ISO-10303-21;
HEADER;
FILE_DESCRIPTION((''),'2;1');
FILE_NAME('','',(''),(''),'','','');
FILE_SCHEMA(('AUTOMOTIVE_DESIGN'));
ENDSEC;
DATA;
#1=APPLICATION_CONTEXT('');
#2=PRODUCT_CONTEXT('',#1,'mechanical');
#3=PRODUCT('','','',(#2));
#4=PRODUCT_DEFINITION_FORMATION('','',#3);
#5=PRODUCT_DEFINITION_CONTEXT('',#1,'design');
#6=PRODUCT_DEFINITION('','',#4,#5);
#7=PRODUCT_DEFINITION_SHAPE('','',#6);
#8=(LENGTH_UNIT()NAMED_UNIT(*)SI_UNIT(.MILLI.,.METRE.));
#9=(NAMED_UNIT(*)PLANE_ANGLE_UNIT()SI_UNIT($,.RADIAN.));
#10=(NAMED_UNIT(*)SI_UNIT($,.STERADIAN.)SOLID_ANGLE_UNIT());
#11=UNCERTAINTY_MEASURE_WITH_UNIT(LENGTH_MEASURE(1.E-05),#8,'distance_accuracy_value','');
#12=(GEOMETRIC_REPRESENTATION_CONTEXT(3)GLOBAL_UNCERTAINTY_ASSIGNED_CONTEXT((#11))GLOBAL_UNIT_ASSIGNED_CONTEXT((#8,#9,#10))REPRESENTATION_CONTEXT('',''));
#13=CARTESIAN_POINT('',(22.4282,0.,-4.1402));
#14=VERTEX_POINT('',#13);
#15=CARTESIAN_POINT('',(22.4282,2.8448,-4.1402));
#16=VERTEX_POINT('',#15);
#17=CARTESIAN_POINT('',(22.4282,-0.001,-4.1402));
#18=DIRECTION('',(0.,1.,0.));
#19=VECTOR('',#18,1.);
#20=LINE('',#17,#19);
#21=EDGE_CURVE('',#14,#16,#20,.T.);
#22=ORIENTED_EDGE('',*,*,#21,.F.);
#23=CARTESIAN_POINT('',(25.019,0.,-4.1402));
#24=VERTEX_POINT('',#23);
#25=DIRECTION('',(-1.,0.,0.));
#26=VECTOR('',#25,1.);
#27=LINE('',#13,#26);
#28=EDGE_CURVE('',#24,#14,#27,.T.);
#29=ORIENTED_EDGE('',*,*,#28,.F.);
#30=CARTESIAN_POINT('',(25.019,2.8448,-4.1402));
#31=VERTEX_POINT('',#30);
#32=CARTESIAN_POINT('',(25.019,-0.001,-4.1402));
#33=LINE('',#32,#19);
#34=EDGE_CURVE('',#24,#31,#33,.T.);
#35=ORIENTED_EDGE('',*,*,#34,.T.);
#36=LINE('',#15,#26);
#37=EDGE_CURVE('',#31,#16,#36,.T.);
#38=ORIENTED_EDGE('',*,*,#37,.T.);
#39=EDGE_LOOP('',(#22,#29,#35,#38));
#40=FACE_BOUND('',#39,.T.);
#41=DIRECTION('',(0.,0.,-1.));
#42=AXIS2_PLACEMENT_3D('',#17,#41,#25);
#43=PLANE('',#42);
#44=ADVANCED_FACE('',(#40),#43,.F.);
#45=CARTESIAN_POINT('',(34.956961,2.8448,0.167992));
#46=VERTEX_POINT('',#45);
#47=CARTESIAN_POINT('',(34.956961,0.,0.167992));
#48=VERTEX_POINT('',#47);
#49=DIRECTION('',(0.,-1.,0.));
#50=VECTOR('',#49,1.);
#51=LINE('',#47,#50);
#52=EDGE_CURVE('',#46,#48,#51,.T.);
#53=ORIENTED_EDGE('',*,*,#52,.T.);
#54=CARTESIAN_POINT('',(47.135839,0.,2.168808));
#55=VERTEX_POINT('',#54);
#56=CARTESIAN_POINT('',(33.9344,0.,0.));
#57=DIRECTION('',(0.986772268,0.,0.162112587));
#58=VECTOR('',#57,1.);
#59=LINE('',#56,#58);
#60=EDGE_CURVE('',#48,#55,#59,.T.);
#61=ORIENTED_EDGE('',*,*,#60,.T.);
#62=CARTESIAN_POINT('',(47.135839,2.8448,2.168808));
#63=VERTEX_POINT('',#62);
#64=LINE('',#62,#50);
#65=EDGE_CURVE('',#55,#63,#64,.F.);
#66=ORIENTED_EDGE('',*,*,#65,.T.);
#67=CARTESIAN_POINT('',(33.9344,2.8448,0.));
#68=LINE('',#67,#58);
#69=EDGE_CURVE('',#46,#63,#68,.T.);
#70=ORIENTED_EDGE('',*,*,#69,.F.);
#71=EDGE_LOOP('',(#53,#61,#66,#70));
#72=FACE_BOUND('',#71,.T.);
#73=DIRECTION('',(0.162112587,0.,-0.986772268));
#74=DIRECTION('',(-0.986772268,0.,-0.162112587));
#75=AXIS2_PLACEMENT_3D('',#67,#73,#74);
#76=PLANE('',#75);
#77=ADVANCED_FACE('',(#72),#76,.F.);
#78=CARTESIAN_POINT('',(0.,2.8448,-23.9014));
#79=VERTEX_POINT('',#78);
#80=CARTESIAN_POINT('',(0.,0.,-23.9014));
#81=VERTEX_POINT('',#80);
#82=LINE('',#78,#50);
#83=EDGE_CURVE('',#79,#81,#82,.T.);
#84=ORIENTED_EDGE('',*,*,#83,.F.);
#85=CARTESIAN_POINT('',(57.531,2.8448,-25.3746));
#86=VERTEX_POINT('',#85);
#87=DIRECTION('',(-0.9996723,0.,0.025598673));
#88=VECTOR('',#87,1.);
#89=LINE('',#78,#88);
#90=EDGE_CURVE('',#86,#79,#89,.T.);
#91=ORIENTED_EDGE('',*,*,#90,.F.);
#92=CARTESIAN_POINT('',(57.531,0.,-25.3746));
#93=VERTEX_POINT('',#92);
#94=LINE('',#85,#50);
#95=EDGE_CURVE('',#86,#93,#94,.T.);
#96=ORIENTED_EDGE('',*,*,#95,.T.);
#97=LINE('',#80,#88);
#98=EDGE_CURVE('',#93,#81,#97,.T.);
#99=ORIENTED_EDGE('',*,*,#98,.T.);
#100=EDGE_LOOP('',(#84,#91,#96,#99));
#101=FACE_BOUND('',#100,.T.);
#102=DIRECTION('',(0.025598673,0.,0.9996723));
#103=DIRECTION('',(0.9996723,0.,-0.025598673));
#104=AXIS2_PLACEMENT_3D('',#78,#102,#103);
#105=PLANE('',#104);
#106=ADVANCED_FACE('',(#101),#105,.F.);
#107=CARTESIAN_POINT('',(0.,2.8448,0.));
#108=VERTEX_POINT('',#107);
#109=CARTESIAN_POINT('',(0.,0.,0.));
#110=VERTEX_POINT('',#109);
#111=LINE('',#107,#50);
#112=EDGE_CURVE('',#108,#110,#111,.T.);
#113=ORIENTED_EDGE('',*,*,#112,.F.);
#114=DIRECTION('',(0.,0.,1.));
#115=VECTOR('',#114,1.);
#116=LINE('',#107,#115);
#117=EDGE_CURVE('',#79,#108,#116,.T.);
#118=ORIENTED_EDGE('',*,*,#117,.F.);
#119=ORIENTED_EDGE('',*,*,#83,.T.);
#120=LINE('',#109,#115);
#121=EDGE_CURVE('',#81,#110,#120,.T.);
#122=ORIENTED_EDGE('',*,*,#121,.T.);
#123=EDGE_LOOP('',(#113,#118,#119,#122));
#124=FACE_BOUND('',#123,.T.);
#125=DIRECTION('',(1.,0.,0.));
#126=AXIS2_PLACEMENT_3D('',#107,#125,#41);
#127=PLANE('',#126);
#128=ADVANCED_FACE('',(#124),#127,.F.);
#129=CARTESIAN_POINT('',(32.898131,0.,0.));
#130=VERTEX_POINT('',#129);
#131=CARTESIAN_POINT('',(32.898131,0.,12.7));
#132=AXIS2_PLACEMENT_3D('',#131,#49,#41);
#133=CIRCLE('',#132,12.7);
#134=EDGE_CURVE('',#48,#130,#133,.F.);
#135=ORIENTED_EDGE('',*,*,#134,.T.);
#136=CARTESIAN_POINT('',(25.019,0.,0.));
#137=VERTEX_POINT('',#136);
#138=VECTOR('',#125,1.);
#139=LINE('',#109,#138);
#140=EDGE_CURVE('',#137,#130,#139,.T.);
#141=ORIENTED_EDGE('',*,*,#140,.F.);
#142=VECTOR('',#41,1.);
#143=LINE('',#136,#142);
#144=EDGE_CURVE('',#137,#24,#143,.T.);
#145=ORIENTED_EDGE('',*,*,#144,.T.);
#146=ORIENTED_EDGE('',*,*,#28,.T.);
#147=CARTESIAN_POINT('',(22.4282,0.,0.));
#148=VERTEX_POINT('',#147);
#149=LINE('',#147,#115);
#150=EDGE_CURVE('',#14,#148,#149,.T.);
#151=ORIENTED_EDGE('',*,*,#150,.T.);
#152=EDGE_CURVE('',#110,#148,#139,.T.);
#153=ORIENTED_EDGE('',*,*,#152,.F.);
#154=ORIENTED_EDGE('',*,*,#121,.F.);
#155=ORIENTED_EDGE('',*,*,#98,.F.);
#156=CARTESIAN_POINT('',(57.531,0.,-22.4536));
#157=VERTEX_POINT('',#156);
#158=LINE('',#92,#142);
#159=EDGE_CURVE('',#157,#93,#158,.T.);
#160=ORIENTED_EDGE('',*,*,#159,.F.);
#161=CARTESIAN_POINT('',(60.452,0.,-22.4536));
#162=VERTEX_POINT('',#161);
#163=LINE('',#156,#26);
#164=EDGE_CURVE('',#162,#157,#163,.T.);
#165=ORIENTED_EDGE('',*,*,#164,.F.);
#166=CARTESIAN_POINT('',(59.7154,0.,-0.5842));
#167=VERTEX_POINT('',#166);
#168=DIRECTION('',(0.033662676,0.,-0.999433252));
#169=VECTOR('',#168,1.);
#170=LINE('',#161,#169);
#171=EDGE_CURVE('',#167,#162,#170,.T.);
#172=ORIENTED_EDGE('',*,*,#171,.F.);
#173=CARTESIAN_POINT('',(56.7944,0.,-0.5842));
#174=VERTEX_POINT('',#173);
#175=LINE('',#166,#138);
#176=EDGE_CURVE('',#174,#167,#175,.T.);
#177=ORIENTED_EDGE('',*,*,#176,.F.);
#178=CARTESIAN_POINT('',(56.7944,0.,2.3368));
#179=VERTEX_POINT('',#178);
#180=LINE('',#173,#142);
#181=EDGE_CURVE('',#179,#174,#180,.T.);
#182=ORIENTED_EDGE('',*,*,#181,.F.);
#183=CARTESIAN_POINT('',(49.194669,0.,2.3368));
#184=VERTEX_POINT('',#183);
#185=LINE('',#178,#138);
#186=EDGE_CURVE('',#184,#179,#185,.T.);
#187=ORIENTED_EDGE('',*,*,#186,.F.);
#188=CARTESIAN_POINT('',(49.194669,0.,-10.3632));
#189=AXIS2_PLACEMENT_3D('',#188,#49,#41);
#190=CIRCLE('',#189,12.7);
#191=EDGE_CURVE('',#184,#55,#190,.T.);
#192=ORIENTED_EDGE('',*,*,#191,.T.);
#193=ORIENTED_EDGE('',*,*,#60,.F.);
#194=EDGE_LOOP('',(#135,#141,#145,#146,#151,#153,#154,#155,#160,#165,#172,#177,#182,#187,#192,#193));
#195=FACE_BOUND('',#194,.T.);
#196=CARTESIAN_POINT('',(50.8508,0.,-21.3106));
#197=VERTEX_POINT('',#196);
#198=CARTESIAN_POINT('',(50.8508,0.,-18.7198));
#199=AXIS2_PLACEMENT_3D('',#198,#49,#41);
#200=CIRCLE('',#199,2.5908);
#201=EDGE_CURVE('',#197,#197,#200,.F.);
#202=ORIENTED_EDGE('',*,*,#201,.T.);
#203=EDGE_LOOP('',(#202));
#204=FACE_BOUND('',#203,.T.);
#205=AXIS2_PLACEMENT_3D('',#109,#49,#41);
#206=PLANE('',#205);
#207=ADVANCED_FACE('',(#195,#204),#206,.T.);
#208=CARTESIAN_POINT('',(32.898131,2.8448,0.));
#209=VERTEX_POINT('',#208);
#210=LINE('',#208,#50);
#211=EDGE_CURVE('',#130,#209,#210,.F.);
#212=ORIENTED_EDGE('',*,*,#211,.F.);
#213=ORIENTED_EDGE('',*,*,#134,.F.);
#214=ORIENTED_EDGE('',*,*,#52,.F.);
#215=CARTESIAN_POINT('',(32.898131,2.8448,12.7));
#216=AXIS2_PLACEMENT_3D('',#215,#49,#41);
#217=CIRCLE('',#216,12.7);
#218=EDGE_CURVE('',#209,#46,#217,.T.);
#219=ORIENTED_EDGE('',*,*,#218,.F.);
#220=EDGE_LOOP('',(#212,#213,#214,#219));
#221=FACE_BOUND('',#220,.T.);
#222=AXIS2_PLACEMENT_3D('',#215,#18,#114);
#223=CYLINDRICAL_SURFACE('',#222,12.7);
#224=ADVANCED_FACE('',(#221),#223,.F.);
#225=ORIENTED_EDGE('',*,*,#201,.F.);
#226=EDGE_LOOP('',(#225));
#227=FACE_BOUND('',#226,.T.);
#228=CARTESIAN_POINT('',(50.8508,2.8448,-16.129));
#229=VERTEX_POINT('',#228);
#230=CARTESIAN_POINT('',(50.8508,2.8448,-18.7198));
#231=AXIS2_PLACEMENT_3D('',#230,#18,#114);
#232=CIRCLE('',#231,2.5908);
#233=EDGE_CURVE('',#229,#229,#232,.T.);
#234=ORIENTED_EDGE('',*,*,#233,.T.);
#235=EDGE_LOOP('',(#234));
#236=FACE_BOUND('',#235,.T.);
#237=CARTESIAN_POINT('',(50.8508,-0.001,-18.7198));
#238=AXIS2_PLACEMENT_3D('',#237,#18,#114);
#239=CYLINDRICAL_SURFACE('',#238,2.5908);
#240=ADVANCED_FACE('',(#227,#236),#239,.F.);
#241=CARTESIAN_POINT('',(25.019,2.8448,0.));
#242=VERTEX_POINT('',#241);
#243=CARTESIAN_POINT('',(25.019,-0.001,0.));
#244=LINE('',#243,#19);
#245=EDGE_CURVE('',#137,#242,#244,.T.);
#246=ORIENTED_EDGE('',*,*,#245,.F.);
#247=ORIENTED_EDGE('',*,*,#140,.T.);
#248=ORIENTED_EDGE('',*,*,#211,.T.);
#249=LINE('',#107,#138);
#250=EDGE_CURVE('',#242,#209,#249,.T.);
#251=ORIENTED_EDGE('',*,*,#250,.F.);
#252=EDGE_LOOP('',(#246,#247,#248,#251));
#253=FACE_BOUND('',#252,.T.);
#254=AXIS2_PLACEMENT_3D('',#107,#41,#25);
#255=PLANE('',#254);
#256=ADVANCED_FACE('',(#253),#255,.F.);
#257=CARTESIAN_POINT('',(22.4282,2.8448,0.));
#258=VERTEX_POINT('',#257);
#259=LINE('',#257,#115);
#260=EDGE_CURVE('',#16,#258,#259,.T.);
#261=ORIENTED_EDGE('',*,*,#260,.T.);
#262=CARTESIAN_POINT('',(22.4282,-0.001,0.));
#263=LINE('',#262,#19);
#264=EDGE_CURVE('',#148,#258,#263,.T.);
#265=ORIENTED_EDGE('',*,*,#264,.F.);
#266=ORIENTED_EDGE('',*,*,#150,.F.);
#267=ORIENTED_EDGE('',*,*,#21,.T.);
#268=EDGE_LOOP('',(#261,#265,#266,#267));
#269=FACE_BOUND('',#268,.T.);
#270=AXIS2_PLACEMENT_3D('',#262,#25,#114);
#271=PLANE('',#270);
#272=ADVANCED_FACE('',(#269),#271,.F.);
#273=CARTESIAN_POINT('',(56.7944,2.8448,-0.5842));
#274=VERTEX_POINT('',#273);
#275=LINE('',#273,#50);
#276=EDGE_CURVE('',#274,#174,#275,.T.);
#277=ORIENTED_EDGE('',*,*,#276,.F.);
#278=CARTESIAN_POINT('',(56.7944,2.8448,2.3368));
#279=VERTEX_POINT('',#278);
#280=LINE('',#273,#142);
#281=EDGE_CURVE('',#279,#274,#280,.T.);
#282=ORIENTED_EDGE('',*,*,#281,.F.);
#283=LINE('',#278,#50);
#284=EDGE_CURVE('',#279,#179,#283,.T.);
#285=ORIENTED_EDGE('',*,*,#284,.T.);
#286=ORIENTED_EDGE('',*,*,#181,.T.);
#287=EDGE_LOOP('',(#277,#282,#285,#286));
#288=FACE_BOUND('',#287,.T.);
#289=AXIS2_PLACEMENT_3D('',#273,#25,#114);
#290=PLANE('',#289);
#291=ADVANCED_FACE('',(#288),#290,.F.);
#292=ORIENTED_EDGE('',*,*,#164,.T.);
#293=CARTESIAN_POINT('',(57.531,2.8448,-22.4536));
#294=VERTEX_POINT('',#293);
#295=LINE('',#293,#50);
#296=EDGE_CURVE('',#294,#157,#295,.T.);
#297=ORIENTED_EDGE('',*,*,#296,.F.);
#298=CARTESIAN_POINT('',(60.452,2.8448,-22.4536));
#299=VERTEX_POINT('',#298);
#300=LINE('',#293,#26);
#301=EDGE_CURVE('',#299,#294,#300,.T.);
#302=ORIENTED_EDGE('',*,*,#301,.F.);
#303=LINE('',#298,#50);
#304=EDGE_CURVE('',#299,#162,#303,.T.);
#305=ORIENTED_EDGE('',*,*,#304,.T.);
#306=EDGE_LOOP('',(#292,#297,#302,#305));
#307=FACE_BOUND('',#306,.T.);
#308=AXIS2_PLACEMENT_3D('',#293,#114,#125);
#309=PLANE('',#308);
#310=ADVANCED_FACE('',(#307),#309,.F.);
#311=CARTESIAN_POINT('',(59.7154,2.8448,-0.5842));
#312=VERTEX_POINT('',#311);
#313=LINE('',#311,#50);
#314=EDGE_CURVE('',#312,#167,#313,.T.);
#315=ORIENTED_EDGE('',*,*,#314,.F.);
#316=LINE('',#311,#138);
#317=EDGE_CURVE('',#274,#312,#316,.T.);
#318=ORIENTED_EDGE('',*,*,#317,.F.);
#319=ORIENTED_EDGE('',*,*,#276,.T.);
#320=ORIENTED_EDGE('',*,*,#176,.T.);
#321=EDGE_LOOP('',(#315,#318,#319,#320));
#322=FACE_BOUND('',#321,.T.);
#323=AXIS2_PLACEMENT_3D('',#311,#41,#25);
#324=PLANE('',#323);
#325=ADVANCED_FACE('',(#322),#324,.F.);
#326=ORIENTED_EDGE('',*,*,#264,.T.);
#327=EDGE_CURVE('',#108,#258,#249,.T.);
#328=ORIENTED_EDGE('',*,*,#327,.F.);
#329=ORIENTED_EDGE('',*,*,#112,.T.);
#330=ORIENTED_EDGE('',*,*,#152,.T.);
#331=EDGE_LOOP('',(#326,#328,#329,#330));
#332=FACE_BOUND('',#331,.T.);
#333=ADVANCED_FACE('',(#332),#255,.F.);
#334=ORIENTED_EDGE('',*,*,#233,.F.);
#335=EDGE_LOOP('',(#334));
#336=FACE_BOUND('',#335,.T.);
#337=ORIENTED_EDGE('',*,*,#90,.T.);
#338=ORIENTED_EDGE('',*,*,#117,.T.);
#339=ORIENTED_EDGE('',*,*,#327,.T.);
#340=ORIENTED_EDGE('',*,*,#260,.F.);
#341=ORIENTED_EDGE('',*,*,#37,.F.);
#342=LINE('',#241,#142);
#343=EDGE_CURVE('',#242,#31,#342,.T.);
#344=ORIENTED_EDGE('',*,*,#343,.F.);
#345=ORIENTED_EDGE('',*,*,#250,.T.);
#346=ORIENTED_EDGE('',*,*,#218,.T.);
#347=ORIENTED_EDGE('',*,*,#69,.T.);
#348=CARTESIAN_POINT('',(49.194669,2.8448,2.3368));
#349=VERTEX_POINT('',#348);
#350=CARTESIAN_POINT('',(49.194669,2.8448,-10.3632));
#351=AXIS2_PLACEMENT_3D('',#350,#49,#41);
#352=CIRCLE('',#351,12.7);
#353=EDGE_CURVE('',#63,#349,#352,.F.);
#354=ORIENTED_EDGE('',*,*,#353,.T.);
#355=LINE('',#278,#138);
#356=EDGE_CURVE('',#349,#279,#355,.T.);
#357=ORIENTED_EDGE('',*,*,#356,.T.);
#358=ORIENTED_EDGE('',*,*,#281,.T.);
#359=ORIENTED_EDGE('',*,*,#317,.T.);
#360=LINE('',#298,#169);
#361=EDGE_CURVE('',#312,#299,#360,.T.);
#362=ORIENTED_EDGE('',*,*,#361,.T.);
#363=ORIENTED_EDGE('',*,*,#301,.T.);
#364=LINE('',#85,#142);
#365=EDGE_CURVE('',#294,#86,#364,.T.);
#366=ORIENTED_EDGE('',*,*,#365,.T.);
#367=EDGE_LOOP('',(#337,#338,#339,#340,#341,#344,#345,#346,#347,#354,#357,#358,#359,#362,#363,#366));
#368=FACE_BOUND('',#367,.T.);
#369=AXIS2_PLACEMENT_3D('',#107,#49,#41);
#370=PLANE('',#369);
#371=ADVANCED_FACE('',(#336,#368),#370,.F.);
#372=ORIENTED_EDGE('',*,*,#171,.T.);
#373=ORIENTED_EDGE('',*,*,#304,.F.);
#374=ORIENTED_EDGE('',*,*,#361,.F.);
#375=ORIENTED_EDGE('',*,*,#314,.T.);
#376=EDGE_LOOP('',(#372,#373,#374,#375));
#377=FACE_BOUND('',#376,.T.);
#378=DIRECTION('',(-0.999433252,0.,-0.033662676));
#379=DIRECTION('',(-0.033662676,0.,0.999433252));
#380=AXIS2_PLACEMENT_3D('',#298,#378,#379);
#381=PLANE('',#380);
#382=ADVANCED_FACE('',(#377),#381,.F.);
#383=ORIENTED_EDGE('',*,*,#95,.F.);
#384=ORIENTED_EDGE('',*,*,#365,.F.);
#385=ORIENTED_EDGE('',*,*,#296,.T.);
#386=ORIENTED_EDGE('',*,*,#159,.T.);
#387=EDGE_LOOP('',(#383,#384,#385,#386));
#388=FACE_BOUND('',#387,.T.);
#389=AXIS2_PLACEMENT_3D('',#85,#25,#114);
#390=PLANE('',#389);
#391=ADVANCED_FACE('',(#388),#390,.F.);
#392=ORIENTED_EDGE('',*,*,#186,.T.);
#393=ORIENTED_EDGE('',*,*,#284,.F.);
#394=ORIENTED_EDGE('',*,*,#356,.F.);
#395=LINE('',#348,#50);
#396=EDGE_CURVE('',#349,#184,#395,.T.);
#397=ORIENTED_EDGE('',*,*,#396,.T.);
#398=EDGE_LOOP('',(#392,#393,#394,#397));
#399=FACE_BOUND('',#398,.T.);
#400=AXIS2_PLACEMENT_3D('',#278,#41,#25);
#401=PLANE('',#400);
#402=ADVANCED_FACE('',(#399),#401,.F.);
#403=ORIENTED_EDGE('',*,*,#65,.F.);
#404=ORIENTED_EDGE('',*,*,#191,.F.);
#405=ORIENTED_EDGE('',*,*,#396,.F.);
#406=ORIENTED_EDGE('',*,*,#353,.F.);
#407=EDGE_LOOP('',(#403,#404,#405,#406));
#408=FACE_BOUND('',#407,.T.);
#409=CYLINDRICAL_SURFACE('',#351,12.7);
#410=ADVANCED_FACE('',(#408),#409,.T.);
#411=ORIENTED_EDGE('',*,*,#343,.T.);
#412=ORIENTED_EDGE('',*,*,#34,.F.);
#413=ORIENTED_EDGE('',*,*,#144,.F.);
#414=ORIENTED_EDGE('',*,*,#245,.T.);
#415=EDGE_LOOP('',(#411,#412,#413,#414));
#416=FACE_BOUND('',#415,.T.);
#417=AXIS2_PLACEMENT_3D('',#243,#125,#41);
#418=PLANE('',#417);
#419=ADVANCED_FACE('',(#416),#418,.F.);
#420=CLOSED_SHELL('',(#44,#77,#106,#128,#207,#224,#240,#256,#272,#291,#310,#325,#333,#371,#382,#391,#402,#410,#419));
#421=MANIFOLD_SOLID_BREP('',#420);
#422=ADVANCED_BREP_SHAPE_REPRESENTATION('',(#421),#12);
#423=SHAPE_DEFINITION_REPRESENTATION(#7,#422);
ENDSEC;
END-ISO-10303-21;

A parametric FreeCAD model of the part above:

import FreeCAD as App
import Part
import Sketcher

V = App.Vector
Q = App.Units.Quantity


def edges_at(feature, points):
    """Names of the edges that pass closest to the given points."""
    edges = feature.Shape.Edges
    near = lambda p: min(range(len(edges)), key=lambda i: edges[i].distToShape(Part.Vertex(*p))[0])
    return sorted({f"Edge{near(p) + 1}" for p in points})

doc = App.newDocument("Part")
params = doc.addObject("Spreadsheet::Sheet", "Params")
for row, (alias, value) in enumerate([
    ("sketch1_width", "0.34 in"),
    ("sketch1_width2", "1.336 in"),
    ("sketch1_width3", "0.115 in"),
    ("sketch1_height", "0.941 in"),
    ("pad1_length", "0.112 in"),
    ("fillet_radius", "0.5 in"),
    ("sketch2_width", "0.102 in"),
    ("sketch2_height", "0.163 in"),
    ("sketch3_diameter", "0.204 in"),
], start=1):
    params.set(f"A{row}", alias)
    params.set(f"B{row}", "=" + value)
    params.setAlias(f"B{row}", alias)

body = doc.addObject("PartDesign::Body", "Body")

sketch1 = body.newObject("Sketcher::SketchObject", "Sketch")
sketch1.AttachmentSupport = (doc.getObject("XZ_Plane"), [""])
sketch1.MapMode = "FlatFace"
sketch1.addGeometry([
    Part.LineSegment(V(0, -23.9, 0), V(0, 0, 0)),
    Part.LineSegment(V(0, 0, 0), V(33.9, 0, 0)),
    Part.LineSegment(V(33.9, 0, 0), V(48.2, 2.3, 0)),
    Part.LineSegment(V(48.2, 2.3, 0), V(56.8, 2.3, 0)),
    Part.LineSegment(V(56.8, 2.3, 0), V(56.8, -0.6, 0)),
    Part.LineSegment(V(56.8, -0.6, 0), V(59.7, -0.6, 0)),
    Part.LineSegment(V(59.7, -0.6, 0), V(60.5, -22.5, 0)),
    Part.LineSegment(V(60.5, -22.5, 0), V(57.5, -22.5, 0)),
    Part.LineSegment(V(57.5, -22.5, 0), V(57.5, -25.4, 0)),
    Part.LineSegment(V(57.5, -25.4, 0), V(0, -23.9, 0)),
], False)
sketch1.addConstraint([
    Sketcher.Constraint("Coincident", 0, 2, 1, 1),
    Sketcher.Constraint("Coincident", 1, 2, 2, 1),
    Sketcher.Constraint("Coincident", 2, 2, 3, 1),
    Sketcher.Constraint("Coincident", 3, 2, 4, 1),
    Sketcher.Constraint("Coincident", 4, 2, 5, 1),
    Sketcher.Constraint("Coincident", 5, 2, 6, 1),
    Sketcher.Constraint("Coincident", 6, 2, 7, 1),
    Sketcher.Constraint("Coincident", 7, 2, 8, 1),
    Sketcher.Constraint("Coincident", 8, 2, 9, 1),
    Sketcher.Constraint("Coincident", 9, 2, 0, 1),
    Sketcher.Constraint("Vertical", 0),
    Sketcher.Constraint("Horizontal", 1),
    Sketcher.Constraint("Horizontal", 3),
    Sketcher.Constraint("Vertical", 4),
    Sketcher.Constraint("Horizontal", 5),
    Sketcher.Constraint("Horizontal", 7),
    Sketcher.Constraint("Vertical", 8),
    Sketcher.Constraint("Coincident", 0, 2, -1, 1),
    Sketcher.Constraint("Equal", 5, 7),
    Sketcher.Constraint("Equal", 7, 4),
    Sketcher.Constraint("Equal", 4, 8),
    Sketcher.Constraint("DistanceX", 3, 1, 3, 2, Q("0.34 in")),
    Sketcher.Constraint("DistanceX", 1, 2, 3, 2, Q("0.9 in")),
    Sketcher.Constraint("DistanceX", 1, 1, 1, 2, Q("1.336 in")),
    Sketcher.Constraint("DistanceX", 5, 1, 5, 2, Q("0.115 in")),
    Sketcher.Constraint("DistanceY", 0, 1, 0, 2, Q("0.941 in")),
    Sketcher.Constraint("DistanceX", -1, 1, 6, 2, Q("2.38 in")),
    Sketcher.Constraint("DistanceY", -1, 1, 2, 2, Q("0.092 in")),
    Sketcher.Constraint("DistanceY", 6, 2, -1, 1, Q("0.884 in")),
])
sketch1.setExpression("Constraints[21]", "Params.sketch1_width")
sketch1.setExpression("Constraints[23]", "Params.sketch1_width2")
sketch1.setExpression("Constraints[24]", "Params.sketch1_width3")
sketch1.setExpression("Constraints[25]", "Params.sketch1_height")
pad1 = body.newObject("PartDesign::Pad", "Pad")
pad1.Profile = sketch1
pad1.setExpression("Length", "Params.pad1_length")
pad1.Reversed = True
doc.recompute()

fillet = body.newObject("PartDesign::Fillet", "Fillet")
fillet.Base = (pad1, edges_at(pad1, [(48.158, 1.422, 2.337), (33.934, 1.422, 0)]))
fillet.setExpression("Radius", "Params.fillet_radius")

sketch2 = body.newObject("Sketcher::SketchObject", "Sketch001")
sketch2.AttachmentSupport = (doc.getObject("XZ_Plane"), [""])
sketch2.MapMode = "FlatFace"
sketch2.AttachmentOffset = App.Placement(V(0, 0, -0.112 * 25.4), App.Rotation())
sketch2.addGeometry([
    Part.LineSegment(V(22.4, -4.1, 0), V(22.4, 0, 0)),
    Part.LineSegment(V(22.4, 0, 0), V(25, 0, 0)),
    Part.LineSegment(V(25, 0, 0), V(25, -4.1, 0)),
    Part.LineSegment(V(25, -4.1, 0), V(22.4, -4.1, 0)),
], False)
sketch2.addConstraint([
    Sketcher.Constraint("Coincident", 0, 2, 1, 1),
    Sketcher.Constraint("Coincident", 1, 2, 2, 1),
    Sketcher.Constraint("Coincident", 2, 2, 3, 1),
    Sketcher.Constraint("Coincident", 3, 2, 0, 1),
    Sketcher.Constraint("Vertical", 0),
    Sketcher.Constraint("Horizontal", 1),
    Sketcher.Constraint("Vertical", 2),
    Sketcher.Constraint("Horizontal", 3),
    Sketcher.Constraint("PointOnObject", 0, 2, -1),
    Sketcher.Constraint("DistanceX", 1, 1, 1, 2, Q("0.102 in")),
    Sketcher.Constraint("DistanceY", 0, 1, 0, 2, Q("0.163 in")),
    Sketcher.Constraint("DistanceX", -1, 1, 0, 2, Q("0.883 in")),
])
sketch2.setExpression("Constraints[9]", "Params.sketch2_width")
sketch2.setExpression("Constraints[10]", "Params.sketch2_height")
pocket1 = body.newObject("PartDesign::Pocket", "Pocket")
pocket1.Profile = sketch2
pocket1.Type = "UpToFirst"
pocket1.Reversed = True

sketch3 = body.newObject("Sketcher::SketchObject", "Sketch002")
sketch3.AttachmentSupport = (doc.getObject("XZ_Plane"), [""])
sketch3.MapMode = "FlatFace"
sketch3.AttachmentOffset = App.Placement(V(0, 0, -0.112 * 25.4), App.Rotation())
sketch3.addGeometry(Part.Circle(V(50.9, -18.7, 0), V(0, 0, 1), 2.6), False)
sketch3.addConstraint([
    Sketcher.Constraint("Diameter", 0, Q("0.204 in")),
    Sketcher.Constraint("DistanceX", -1, 1, 0, 3, Q("2.002 in")),
    Sketcher.Constraint("DistanceY", 0, 3, -1, 1, Q("0.737 in")),
])
sketch3.setExpression("Constraints[0]", "Params.sketch3_diameter")
pocket2 = body.newObject("PartDesign::Pocket", "Pocket001")
pocket2.Profile = sketch3
pocket2.Type = "UpToFirst"
pocket2.Reversed = True

doc.recompute()
